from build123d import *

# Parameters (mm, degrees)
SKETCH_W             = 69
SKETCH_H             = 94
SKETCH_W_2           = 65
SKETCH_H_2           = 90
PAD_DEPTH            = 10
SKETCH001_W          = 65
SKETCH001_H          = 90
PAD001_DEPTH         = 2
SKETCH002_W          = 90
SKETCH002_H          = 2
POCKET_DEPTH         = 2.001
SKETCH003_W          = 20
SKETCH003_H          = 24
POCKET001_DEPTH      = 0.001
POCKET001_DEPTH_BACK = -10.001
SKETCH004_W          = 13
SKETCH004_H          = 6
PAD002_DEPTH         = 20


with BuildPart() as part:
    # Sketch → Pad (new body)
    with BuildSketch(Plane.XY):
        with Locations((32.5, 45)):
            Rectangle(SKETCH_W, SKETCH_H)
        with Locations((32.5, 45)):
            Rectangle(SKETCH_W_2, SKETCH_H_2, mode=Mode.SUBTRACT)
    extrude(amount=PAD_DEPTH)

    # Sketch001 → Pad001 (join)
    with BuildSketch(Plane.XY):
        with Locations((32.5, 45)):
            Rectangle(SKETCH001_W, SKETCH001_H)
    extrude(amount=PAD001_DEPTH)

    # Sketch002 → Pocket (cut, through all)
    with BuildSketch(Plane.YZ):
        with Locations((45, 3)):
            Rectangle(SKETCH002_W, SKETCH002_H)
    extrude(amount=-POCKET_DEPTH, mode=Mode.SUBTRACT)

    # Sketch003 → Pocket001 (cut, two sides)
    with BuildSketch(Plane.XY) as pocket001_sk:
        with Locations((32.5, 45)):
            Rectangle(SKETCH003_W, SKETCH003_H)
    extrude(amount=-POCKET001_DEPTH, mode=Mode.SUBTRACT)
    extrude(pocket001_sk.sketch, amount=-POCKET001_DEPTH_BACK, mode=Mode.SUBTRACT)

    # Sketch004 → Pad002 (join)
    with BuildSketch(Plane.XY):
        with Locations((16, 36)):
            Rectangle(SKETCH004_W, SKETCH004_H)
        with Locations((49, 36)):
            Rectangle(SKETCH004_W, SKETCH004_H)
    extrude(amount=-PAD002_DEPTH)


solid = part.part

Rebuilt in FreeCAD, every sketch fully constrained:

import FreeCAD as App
import Part
import Sketcher
from FreeCAD import Vector

doc = App.newDocument("Part")
body = doc.addObject("PartDesign::Body", "Body")

# Sketch on XY plane
sketch1 = doc.addObject("Sketcher::SketchObject", "Sketch")
body.addObject(sketch1)
sketch1.AttachmentSupport = (doc.XY_Plane, [""])
sketch1.MapMode = "FlatFace"
sketch1.addGeometry(Part.LineSegment(Vector(-2, 92, 0), Vector(-2, -2, 0)), False)
sketch1.addGeometry(Part.LineSegment(Vector(-2, -2, 0), Vector(67, -2, 0)), False)
sketch1.addGeometry(Part.LineSegment(Vector(67, -2, 0), Vector(67, 92, 0)), False)
sketch1.addGeometry(Part.LineSegment(Vector(67, 92, 0), Vector(-2, 92, 0)), False)
sketch1.addGeometry(Part.LineSegment(Vector(65, 0, 0), Vector(0, 0, 0)), False)
sketch1.addGeometry(Part.LineSegment(Vector(0, 0, 0), Vector(0, 90, 0)), False)
sketch1.addGeometry(Part.LineSegment(Vector(0, 90, 0), Vector(65, 90, 0)), False)
sketch1.addGeometry(Part.LineSegment(Vector(65, 90, 0), Vector(65, 0, 0)), False)
sketch1.addConstraint(Sketcher.Constraint("Coincident", 0, 2, 1, 1))
sketch1.addConstraint(Sketcher.Constraint("Coincident", 1, 2, 2, 1))
sketch1.addConstraint(Sketcher.Constraint("Coincident", 2, 2, 3, 1))
sketch1.addConstraint(Sketcher.Constraint("Coincident", 3, 2, 0, 1))
sketch1.addConstraint(Sketcher.Constraint("Coincident", 4, 2, 5, 1))
sketch1.addConstraint(Sketcher.Constraint("Coincident", 5, 2, 6, 1))
sketch1.addConstraint(Sketcher.Constraint("Coincident", 6, 2, 7, 1))
sketch1.addConstraint(Sketcher.Constraint("Coincident", 7, 2, 4, 1))
sketch1.addConstraint(Sketcher.Constraint("Vertical", 0))
sketch1.addConstraint(Sketcher.Constraint("Horizontal", 1))
sketch1.addConstraint(Sketcher.Constraint("Vertical", 2))
sketch1.addConstraint(Sketcher.Constraint("Horizontal", 3))
sketch1.addConstraint(Sketcher.Constraint("Horizontal", 4))
sketch1.addConstraint(Sketcher.Constraint("Vertical", 5))
sketch1.addConstraint(Sketcher.Constraint("Horizontal", 6))
sketch1.addConstraint(Sketcher.Constraint("Vertical", 7))
sketch1.addConstraint(Sketcher.Constraint("Coincident", 4, 2, -1, 1))
sketch1.addConstraint(Sketcher.Constraint("DistanceX", 1, 1, 1, 2, 69.0))
sketch1.addConstraint(Sketcher.Constraint("DistanceX", 4, 2, 4, 1, 65.0))
sketch1.addConstraint(Sketcher.Constraint("DistanceY", 0, 2, 0, 1, 94.0))
sketch1.addConstraint(Sketcher.Constraint("DistanceY", 5, 1, 5, 2, 90.0))
sketch1.addConstraint(Sketcher.Constraint("DistanceX", 0, 2, -1, 1, 2.0))
sketch1.addConstraint(Sketcher.Constraint("DistanceY", 0, 2, -1, 1, 2.0))
pad1 = doc.addObject("PartDesign::Pad", "Pad")
body.addObject(pad1)
pad1.Profile = sketch1
pad1.Length = 10

# Sketch on XY plane
sketch2 = doc.addObject("Sketcher::SketchObject", "Sketch001")
body.addObject(sketch2)
sketch2.AttachmentSupport = (doc.XY_Plane, [""])
sketch2.MapMode = "FlatFace"
sketch2.addGeometry(Part.LineSegment(Vector(0, 90, 0), Vector(0, 0, 0)), False)
sketch2.addGeometry(Part.LineSegment(Vector(0, 0, 0), Vector(65, 0, 0)), False)
sketch2.addGeometry(Part.LineSegment(Vector(65, 0, 0), Vector(65, 90, 0)), False)
sketch2.addGeometry(Part.LineSegment(Vector(65, 90, 0), Vector(0, 90, 0)), False)
sketch2.addConstraint(Sketcher.Constraint("Coincident", 0, 2, 1, 1))
sketch2.addConstraint(Sketcher.Constraint("Coincident", 1, 2, 2, 1))
sketch2.addConstraint(Sketcher.Constraint("Coincident", 2, 2, 3, 1))
sketch2.addConstraint(Sketcher.Constraint("Coincident", 3, 2, 0, 1))
sketch2.addConstraint(Sketcher.Constraint("Vertical", 0))
sketch2.addConstraint(Sketcher.Constraint("Horizontal", 1))
sketch2.addConstraint(Sketcher.Constraint("Vertical", 2))
sketch2.addConstraint(Sketcher.Constraint("Horizontal", 3))
sketch2.addConstraint(Sketcher.Constraint("Coincident", 0, 2, -1, 1))
sketch2.addConstraint(Sketcher.Constraint("DistanceX", 1, 1, 1, 2, 65.0))
sketch2.addConstraint(Sketcher.Constraint("DistanceY", 0, 2, 0, 1, 90.0))
pad2 = doc.addObject("PartDesign::Pad", "Pad001")
body.addObject(pad2)
pad2.Profile = sketch2
pad2.Length = 2

# Sketch on YZ plane
sketch3 = doc.addObject("Sketcher::SketchObject", "Sketch002")
body.addObject(sketch3)
sketch3.AttachmentSupport = (doc.YZ_Plane, [""])
sketch3.MapMode = "FlatFace"
sketch3.addGeometry(Part.LineSegment(Vector(0, 4, 0), Vector(0, 2, 0)), False)
sketch3.addGeometry(Part.LineSegment(Vector(0, 2, 0), Vector(90, 2, 0)), False)
sketch3.addGeometry(Part.LineSegment(Vector(90, 2, 0), Vector(90, 4, 0)), False)
sketch3.addGeometry(Part.LineSegment(Vector(90, 4, 0), Vector(0, 4, 0)), False)
sketch3.addConstraint(Sketcher.Constraint("Coincident", 0, 2, 1, 1))
sketch3.addConstraint(Sketcher.Constraint("Coincident", 1, 2, 2, 1))
sketch3.addConstraint(Sketcher.Constraint("Coincident", 2, 2, 3, 1))
sketch3.addConstraint(Sketcher.Constraint("Coincident", 3, 2, 0, 1))
sketch3.addConstraint(Sketcher.Constraint("Vertical", 0))
sketch3.addConstraint(Sketcher.Constraint("Horizontal", 1))
sketch3.addConstraint(Sketcher.Constraint("Vertical", 2))
sketch3.addConstraint(Sketcher.Constraint("Horizontal", 3))
sketch3.addConstraint(Sketcher.Constraint("PointOnObject", 0, 2, -2))
sketch3.addConstraint(Sketcher.Constraint("DistanceX", 1, 1, 1, 2, 90.0))
sketch3.addConstraint(Sketcher.Constraint("DistanceY", 0, 2, 0, 1, 2.0))
sketch3.addConstraint(Sketcher.Constraint("DistanceY", -1, 1, 0, 2, 2.0))
pocket1 = doc.addObject("PartDesign::Pocket", "Pocket")
body.addObject(pocket1)
pocket1.Profile = sketch3
pocket1.Type = "ThroughAll"

# Sketch on XY plane
sketch4 = doc.addObject("Sketcher::SketchObject", "Sketch003")
body.addObject(sketch4)
sketch4.AttachmentSupport = (doc.XY_Plane, [""])
sketch4.MapMode = "FlatFace"
sketch4.addGeometry(Part.LineSegment(Vector(22.5, 57, 0), Vector(22.5, 33, 0)), False)
sketch4.addGeometry(Part.LineSegment(Vector(22.5, 33, 0), Vector(42.5, 33, 0)), False)
sketch4.addGeometry(Part.LineSegment(Vector(42.5, 33, 0), Vector(42.5, 57, 0)), False)
sketch4.addGeometry(Part.LineSegment(Vector(42.5, 57, 0), Vector(22.5, 57, 0)), False)
sketch4.addConstraint(Sketcher.Constraint("Coincident", 0, 2, 1, 1))
sketch4.addConstraint(Sketcher.Constraint("Coincident", 1, 2, 2, 1))
sketch4.addConstraint(Sketcher.Constraint("Coincident", 2, 2, 3, 1))
sketch4.addConstraint(Sketcher.Constraint("Coincident", 3, 2, 0, 1))
sketch4.addConstraint(Sketcher.Constraint("Vertical", 0))
sketch4.addConstraint(Sketcher.Constraint("Horizontal", 1))
sketch4.addConstraint(Sketcher.Constraint("Vertical", 2))
sketch4.addConstraint(Sketcher.Constraint("Horizontal", 3))
sketch4.addConstraint(Sketcher.Constraint("DistanceX", 1, 1, 1, 2, 20.0))
sketch4.addConstraint(Sketcher.Constraint("DistanceY", 0, 2, 0, 1, 24.0))
sketch4.addConstraint(Sketcher.Constraint("DistanceY", -1, 1, 0, 2, 33.0))
sketch4.addConstraint(Sketcher.Constraint("DistanceX", -1, 1, 0, 2, 22.5))
pocket2 = doc.addObject("PartDesign::Pocket", "Pocket001")
body.addObject(pocket2)
pocket2.Profile = sketch4
pocket2.Type = "ThroughAll"
pocket2.Midplane = True

# Sketch on XY plane
sketch5 = doc.addObject("Sketcher::SketchObject", "Sketch004")
body.addObject(sketch5)
sketch5.AttachmentSupport = (doc.XY_Plane, [""])
sketch5.MapMode = "FlatFace"
sketch5.addGeometry(Part.LineSegment(Vector(9.5, 39, 0), Vector(9.5, 33, 0)), False)
sketch5.addGeometry(Part.LineSegment(Vector(9.5, 33, 0), Vector(22.5, 33, 0)), False)
sketch5.addGeometry(Part.LineSegment(Vector(22.5, 33, 0), Vector(22.5, 39, 0)), False)
sketch5.addGeometry(Part.LineSegment(Vector(22.5, 39, 0), Vector(9.5, 39, 0)), False)
sketch5.addGeometry(Part.LineSegment(Vector(42.5, 39, 0), Vector(42.5, 33, 0)), False)
sketch5.addGeometry(Part.LineSegment(Vector(42.5, 33, 0), Vector(55.5, 33, 0)), False)
sketch5.addGeometry(Part.LineSegment(Vector(55.5, 33, 0), Vector(55.5, 39, 0)), False)
sketch5.addGeometry(Part.LineSegment(Vector(55.5, 39, 0), Vector(42.5, 39, 0)), False)
sketch5.addConstraint(Sketcher.Constraint("Coincident", 0, 2, 1, 1))
sketch5.addConstraint(Sketcher.Constraint("Coincident", 1, 2, 2, 1))
sketch5.addConstraint(Sketcher.Constraint("Coincident", 2, 2, 3, 1))
sketch5.addConstraint(Sketcher.Constraint("Coincident", 3, 2, 0, 1))
sketch5.addConstraint(Sketcher.Constraint("Coincident", 4, 2, 5, 1))
sketch5.addConstraint(Sketcher.Constraint("Coincident", 5, 2, 6, 1))
sketch5.addConstraint(Sketcher.Constraint("Coincident", 6, 2, 7, 1))
sketch5.addConstraint(Sketcher.Constraint("Coincident", 7, 2, 4, 1))
sketch5.addConstraint(Sketcher.Constraint("Vertical", 0))
sketch5.addConstraint(Sketcher.Constraint("Horizontal", 1))
sketch5.addConstraint(Sketcher.Constraint("Vertical", 2))
sketch5.addConstraint(Sketcher.Constraint("Horizontal", 3))
sketch5.addConstraint(Sketcher.Constraint("Vertical", 4))
sketch5.addConstraint(Sketcher.Constraint("Horizontal", 5))
sketch5.addConstraint(Sketcher.Constraint("Vertical", 6))
sketch5.addConstraint(Sketcher.Constraint("Horizontal", 7))
sketch5.addConstraint(Sketcher.Constraint("Horizontal", 1, 2, 4, 2))
sketch5.addConstraint(Sketcher.Constraint("Horizontal", 3, 2, 6, 2))
sketch5.addConstraint(Sketcher.Constraint("Equal", 3, 5))
sketch5.addConstraint(Sketcher.Constraint("DistanceX", 1, 1, 1, 2, 13.0))
sketch5.addConstraint(Sketcher.Constraint("DistanceY", 0, 2, 0, 1, 6.0))
sketch5.addConstraint(Sketcher.Constraint("DistanceY", -1, 1, 0, 2, 33.0))
sketch5.addConstraint(Sketcher.Constraint("DistanceX", 1, 2, 4, 2, 20.0))
sketch5.addConstraint(Sketcher.Constraint("DistanceX", -1, 1, 0, 2, 9.5))
pad3 = doc.addObject("PartDesign::Pad", "Pad002")
body.addObject(pad3)
pad3.Profile = sketch5
pad3.Length = 20
pad3.Reversed = True

doc.recompute()
